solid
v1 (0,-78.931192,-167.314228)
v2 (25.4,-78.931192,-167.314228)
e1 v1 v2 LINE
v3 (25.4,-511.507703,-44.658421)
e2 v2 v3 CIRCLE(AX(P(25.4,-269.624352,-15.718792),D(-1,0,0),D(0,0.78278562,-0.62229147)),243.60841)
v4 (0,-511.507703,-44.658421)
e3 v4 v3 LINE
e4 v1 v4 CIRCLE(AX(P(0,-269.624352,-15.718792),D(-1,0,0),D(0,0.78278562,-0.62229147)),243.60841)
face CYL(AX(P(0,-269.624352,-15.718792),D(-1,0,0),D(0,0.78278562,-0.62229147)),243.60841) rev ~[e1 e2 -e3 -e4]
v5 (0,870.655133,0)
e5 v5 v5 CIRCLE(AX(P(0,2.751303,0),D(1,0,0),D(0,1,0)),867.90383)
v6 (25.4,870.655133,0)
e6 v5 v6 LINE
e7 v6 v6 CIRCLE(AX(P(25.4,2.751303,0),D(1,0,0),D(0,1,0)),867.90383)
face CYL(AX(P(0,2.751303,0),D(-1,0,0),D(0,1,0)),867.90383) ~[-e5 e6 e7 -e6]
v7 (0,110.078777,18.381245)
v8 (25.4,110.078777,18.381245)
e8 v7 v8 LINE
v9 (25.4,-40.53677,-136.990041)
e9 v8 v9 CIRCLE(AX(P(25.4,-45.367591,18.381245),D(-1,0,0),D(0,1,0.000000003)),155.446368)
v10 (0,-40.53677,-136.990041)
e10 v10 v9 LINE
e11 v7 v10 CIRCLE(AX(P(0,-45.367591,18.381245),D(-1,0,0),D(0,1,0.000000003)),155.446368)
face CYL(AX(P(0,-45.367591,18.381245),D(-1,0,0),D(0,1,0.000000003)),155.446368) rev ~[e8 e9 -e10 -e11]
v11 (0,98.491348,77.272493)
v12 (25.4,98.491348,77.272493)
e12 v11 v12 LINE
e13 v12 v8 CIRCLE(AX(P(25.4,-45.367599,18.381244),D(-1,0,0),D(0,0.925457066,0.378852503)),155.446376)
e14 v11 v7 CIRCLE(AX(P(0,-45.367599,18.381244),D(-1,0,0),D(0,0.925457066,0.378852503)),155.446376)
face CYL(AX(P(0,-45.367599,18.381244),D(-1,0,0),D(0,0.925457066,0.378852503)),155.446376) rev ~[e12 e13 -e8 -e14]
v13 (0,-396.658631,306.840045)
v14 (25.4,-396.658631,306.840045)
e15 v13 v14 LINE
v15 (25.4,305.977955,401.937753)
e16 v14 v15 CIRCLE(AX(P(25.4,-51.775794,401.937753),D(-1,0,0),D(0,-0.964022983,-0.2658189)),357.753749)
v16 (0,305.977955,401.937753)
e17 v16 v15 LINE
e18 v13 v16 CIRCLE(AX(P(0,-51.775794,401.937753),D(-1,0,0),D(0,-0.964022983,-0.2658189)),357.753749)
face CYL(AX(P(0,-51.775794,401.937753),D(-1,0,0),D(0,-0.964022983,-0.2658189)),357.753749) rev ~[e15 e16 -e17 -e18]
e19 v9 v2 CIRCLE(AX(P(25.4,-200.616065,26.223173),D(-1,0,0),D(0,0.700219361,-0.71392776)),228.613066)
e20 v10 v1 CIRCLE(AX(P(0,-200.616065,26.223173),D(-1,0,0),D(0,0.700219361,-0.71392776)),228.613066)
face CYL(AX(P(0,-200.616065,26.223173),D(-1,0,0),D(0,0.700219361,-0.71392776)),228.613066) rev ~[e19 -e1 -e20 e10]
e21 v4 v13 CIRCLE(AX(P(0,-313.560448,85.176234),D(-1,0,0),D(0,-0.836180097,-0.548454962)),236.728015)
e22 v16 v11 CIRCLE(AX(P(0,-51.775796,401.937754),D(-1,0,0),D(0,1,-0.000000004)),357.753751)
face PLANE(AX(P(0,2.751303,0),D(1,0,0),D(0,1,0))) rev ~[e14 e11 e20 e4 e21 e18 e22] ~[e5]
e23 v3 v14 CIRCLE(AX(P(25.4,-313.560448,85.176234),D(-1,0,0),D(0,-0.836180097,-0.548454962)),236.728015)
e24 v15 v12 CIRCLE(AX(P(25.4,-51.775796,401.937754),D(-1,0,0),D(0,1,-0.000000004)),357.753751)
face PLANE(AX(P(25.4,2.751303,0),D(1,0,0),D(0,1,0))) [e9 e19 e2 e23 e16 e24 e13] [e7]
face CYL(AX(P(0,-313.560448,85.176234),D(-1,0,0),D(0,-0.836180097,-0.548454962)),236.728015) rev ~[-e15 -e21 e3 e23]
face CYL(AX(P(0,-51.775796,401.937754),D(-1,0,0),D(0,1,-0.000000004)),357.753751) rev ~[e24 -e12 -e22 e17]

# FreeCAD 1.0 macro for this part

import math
import FreeCAD as App
import Part
import Sketcher
from FreeCAD import Vector

doc = App.newDocument("Part")
params = doc.addObject("Spreadsheet::Sheet", "Params")
for row, (alias, value) in enumerate([
    ("pad1_length", "1 in"),
], start=1):
    params.set(f"A{row}", alias)
    params.set(f"B{row}", "=" + value)
    params.setAlias(f"B{row}", alias)

body = doc.addObject("PartDesign::Body", "Body")

# Sketch on YZ plane
sketch1 = body.newObject("Sketcher::SketchObject", "Sketch")
sketch1.AttachmentSupport = (doc.getObject("YZ_Plane"), [""])
sketch1.MapMode = "FlatFace"
sketch1.addGeometry(Part.Circle(Vector(2.751303, 0, 0), Vector(0, 0, 1), 867.90383), False)
sketch1.addGeometry(Part.ArcOfCircle(Part.Circle(Vector(-45.367591, 18.381245, 0), Vector(0, 0, 1), 155.446368), math.radians(-88.219127), math.radians(0)), False)
sketch1.addGeometry(Part.ArcOfCircle(Part.Circle(Vector(-200.616065, 26.223173, 0), Vector(0, 0, 1), 228.613066), math.radians(-57.840747), math.radians(-45.555394)), False)
sketch1.addGeometry(Part.ArcOfCircle(Part.Circle(Vector(-269.624352, -15.718792, 0), Vector(0, 0, 1), 243.60841), math.radians(-173.177397), math.radians(-38.483664)), False)
sketch1.addGeometry(Part.ArcOfCircle(Part.Circle(Vector(-313.560448, 85.176234, 0), Vector(0, 0, 1), 236.728015), math.radians(110.550211), math.radians(213.261081)), False)
sketch1.addGeometry(Part.ArcOfCircle(Part.Circle(Vector(-51.775794, 401.937753, 0), Vector(0, 0, 1), 357.753749), math.radians(0), math.radians(195.415618)), False)
sketch1.addGeometry(Part.ArcOfCircle(Part.Circle(Vector(-51.775796, 401.937754, 0), Vector(0, 0, 1), 357.753751), math.radians(-65.163547), math.radians(0)), False)
sketch1.addGeometry(Part.ArcOfCircle(Part.Circle(Vector(-45.367599, 18.381244, 0), Vector(0, 0, 1), 155.446376), math.radians(0), math.radians(22.262622)), False)
sketch1.addConstraint(Sketcher.Constraint("Coincident", 1, 1, 2, 2))
sketch1.addConstraint(Sketcher.Constraint("Coincident", 2, 1, 3, 2))
sketch1.addConstraint(Sketcher.Constraint("Coincident", 3, 1, 4, 2))
sketch1.addConstraint(Sketcher.Constraint("Coincident", 4, 1, 5, 2))
sketch1.addConstraint(Sketcher.Constraint("Tangent", 5, 1, 6, 2))
sketch1.addConstraint(Sketcher.Constraint("Coincident", 6, 1, 7, 2))
sketch1.addConstraint(Sketcher.Constraint("Tangent", 7, 1, 1, 2))
sketch1.addConstraint(Sketcher.Constraint("Equal", 5, 6))
sketch1.addConstraint(Sketcher.Constraint("PointOnObject", 0, 3, -1))
sketch1.addConstraint(Sketcher.Constraint("Horizontal", 6, 3, 5, 1))
sketch1.addConstraint(Sketcher.Constraint("Horizontal", 1, 3, 7, 1))
sketch1.addConstraint(Sketcher.Constraint("Diameter", 0, 1735.80766))
sketch1.addConstraint(Sketcher.Constraint("Radius", 3, 243.60841))
sketch1.addConstraint(Sketcher.Constraint("Radius", 5, 357.753749))
sketch1.addConstraint(Sketcher.Constraint("Radius", 1, 155.446368))
sketch1.addConstraint(Sketcher.Constraint("Radius", 2, 228.613066))
sketch1.addConstraint(Sketcher.Constraint("Radius", 4, 236.728015))
sketch1.addConstraint(Sketcher.Constraint("Radius", 7, 155.446376))
sketch1.addConstraint(Sketcher.Constraint("DistanceX", 7, 3, -1, 1, 45.367599))
sketch1.addConstraint(Sketcher.Constraint("DistanceX", 6, 3, 0, 3, 54.527099))
sketch1.addConstraint(Sketcher.Constraint("DistanceX", 2, 1, 1, 3, 33.563601))
sketch1.addConstraint(Sketcher.Constraint("DistanceY", 2, 1, 2, 3, 193.537401))
sketch1.addConstraint(Sketcher.Constraint("DistanceX", 4, 3, -1, 1, 313.560448))
sketch1.addConstraint(Sketcher.Constraint("DistanceX", 1, 1, -1, 1, 40.53677))
sketch1.addConstraint(Sketcher.Constraint("DistanceY", 1, 1, -1, 1, 136.990041))
sketch1.addConstraint(Sketcher.Constraint("DistanceY", 3, 1, -1, 1, 44.658421))
sketch1.addConstraint(Sketcher.Constraint("DistanceX", 4, 1, -1, 1, 396.658631))
sketch1.addConstraint(Sketcher.Constraint("DistanceX", 3, 3, 1, 3, 224.256762))
sketch1.addConstraint(Sketcher.Constraint("DistanceX", 4, 3, 0, 3, 316.311751))
pad1 = body.newObject("PartDesign::Pad", "Pad")
pad1.Profile = sketch1
pad1.setExpression("Length", "Params.pad1_length")

doc.recompute()
